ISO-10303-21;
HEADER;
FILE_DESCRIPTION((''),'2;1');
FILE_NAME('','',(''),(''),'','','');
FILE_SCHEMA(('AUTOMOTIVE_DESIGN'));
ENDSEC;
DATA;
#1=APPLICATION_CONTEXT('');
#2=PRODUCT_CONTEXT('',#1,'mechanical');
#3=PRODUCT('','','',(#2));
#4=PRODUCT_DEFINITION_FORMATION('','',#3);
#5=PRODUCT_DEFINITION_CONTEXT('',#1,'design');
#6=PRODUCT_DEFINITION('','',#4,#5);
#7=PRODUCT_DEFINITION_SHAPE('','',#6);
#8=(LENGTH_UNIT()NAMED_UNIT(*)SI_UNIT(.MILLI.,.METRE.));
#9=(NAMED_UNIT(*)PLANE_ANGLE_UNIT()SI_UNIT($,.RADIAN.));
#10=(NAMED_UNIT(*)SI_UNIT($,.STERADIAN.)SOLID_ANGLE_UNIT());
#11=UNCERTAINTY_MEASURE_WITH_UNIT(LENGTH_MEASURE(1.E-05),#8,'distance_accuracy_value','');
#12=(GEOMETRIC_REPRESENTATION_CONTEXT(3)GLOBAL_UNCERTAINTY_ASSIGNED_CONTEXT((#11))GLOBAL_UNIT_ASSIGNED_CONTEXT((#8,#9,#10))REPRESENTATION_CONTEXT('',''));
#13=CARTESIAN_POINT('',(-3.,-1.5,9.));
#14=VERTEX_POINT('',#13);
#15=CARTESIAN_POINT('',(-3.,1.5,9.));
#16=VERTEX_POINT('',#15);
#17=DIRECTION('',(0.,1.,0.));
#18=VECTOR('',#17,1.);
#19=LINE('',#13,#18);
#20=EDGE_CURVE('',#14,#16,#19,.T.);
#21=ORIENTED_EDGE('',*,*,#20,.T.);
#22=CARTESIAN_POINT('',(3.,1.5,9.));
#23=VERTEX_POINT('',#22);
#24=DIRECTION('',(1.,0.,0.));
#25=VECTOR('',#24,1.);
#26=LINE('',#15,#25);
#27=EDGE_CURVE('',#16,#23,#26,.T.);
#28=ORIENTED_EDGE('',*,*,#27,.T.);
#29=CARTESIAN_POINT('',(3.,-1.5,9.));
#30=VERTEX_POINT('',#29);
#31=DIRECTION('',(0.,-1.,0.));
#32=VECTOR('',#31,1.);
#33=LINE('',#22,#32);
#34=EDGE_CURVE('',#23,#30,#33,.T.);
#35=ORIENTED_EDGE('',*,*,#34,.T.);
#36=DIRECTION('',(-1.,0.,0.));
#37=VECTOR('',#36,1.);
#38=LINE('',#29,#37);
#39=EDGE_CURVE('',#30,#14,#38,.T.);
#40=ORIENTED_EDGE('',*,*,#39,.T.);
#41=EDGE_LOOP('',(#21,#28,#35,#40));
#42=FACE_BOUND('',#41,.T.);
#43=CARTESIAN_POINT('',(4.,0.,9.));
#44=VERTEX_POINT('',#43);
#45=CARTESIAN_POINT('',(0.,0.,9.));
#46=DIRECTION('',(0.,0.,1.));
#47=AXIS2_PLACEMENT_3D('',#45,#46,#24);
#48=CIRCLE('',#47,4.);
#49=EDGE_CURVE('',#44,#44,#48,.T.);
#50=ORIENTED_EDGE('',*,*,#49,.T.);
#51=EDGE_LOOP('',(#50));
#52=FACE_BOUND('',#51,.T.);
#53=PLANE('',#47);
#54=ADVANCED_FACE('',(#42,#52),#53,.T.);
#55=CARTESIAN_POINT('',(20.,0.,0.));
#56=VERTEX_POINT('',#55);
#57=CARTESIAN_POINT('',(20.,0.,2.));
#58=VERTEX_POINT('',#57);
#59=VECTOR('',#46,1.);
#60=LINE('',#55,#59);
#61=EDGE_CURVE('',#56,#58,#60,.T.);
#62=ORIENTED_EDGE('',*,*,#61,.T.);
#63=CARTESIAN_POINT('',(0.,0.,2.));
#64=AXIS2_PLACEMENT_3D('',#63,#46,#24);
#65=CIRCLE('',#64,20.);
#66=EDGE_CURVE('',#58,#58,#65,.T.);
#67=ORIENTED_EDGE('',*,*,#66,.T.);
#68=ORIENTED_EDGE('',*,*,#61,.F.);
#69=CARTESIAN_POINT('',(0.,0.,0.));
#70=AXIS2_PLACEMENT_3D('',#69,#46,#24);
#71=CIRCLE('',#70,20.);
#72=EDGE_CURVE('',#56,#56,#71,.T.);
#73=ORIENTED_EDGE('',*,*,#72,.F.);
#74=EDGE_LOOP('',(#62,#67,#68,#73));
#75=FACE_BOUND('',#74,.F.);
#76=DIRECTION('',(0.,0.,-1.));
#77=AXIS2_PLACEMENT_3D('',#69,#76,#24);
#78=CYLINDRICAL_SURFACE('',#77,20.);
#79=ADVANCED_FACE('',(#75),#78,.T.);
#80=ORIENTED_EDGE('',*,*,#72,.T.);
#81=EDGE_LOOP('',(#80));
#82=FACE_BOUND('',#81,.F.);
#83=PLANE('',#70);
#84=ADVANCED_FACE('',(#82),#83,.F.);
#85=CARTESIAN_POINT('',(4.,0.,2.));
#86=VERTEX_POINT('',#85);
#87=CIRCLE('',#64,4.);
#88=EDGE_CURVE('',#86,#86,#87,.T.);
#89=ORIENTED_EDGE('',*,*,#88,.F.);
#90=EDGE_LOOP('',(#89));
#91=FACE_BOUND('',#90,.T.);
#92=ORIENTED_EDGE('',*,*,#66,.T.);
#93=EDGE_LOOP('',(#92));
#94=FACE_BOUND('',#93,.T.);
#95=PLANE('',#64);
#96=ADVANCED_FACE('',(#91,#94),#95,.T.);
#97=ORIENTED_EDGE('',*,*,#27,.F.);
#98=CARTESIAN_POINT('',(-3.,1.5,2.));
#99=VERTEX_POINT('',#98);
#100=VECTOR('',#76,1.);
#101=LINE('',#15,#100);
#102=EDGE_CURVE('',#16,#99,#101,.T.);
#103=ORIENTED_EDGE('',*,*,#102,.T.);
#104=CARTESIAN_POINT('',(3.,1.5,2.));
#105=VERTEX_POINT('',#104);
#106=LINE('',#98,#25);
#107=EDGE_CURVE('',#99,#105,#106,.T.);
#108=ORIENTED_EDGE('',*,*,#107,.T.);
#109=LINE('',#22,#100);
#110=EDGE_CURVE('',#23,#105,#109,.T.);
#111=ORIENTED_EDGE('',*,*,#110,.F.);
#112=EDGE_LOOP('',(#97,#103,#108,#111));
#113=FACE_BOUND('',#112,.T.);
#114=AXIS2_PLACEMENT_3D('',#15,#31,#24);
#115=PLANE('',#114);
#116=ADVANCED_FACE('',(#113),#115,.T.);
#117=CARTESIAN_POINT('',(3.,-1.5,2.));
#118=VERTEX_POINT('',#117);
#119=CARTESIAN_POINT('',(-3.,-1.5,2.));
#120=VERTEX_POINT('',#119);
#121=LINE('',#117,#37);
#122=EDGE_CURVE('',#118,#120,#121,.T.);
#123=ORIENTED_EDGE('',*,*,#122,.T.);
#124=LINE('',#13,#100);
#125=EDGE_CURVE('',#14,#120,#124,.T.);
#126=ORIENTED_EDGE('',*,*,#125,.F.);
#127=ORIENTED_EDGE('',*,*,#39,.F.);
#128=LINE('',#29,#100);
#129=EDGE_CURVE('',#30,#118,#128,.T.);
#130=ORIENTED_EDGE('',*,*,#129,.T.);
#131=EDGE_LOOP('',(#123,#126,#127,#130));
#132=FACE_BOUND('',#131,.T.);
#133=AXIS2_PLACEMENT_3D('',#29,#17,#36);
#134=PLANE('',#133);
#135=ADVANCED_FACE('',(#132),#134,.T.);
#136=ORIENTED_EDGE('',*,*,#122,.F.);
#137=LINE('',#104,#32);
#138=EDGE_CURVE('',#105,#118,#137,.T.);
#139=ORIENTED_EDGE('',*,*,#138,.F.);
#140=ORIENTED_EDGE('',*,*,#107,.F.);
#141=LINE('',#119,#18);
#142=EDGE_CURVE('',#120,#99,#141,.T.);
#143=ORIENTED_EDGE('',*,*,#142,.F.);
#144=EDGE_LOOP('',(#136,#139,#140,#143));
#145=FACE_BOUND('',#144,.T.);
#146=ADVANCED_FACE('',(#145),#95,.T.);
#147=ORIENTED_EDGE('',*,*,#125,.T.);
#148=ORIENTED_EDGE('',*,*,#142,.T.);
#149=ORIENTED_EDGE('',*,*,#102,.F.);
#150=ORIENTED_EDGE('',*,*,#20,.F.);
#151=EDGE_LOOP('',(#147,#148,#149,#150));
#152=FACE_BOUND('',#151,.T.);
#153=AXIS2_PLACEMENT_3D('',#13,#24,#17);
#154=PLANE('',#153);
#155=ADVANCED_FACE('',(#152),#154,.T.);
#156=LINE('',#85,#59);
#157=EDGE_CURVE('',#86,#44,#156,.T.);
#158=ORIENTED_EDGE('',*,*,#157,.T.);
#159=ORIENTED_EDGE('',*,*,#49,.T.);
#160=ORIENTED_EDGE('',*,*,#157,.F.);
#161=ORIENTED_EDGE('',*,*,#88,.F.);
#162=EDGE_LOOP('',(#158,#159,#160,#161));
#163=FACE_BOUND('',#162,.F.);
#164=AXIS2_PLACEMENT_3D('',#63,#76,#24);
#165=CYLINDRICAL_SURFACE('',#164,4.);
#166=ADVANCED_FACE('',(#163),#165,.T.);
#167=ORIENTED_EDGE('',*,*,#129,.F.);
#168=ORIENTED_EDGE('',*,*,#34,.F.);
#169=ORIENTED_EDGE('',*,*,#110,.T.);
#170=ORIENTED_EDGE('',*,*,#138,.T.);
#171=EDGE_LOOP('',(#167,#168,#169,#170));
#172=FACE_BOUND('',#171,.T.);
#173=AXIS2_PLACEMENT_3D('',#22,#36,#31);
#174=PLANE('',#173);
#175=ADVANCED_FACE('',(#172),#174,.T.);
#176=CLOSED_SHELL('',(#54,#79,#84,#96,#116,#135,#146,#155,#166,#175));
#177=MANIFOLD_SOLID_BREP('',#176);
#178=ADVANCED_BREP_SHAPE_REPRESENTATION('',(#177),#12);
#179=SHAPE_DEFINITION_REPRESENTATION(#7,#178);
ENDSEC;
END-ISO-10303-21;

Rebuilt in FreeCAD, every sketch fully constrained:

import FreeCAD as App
import Part
import Sketcher
from FreeCAD import Vector

doc = App.newDocument("Part")
params = doc.addObject("Spreadsheet::Sheet", "Params")
for row, (alias, value) in enumerate([
    ("sketch1_diameter", "40 mm"),
    ("pad1_length", "2 mm"),
    ("sketch2_diameter", "8 mm"),
    ("pad2_length", "7 mm"),
    ("sketch3_width", "6 mm"),
    ("sketch3_height", "3 mm"),
    ("pocket1_length", "7 mm"),
], start=1):
    params.set(f"A{row}", alias)
    params.set(f"B{row}", "=" + value)
    params.setAlias(f"B{row}", alias)

body = doc.addObject("PartDesign::Body", "Body")

sketch1 = body.newObject("Sketcher::SketchObject", "Sketch")
sketch1.AttachmentSupport = (doc.getObject("XY_Plane"), [""])
sketch1.MapMode = "FlatFace"
sketch1.addGeometry(Part.Circle(Vector(0, 0, 0), Vector(0, 0, 1), 20), False)
sketch1.addConstraint([
    Sketcher.Constraint("Coincident", 0, 3, -1, 1),
    Sketcher.Constraint("Diameter", 0, 40.0),
])
sketch1.setExpression("Constraints[1]", "Params.sketch1_diameter")
pad1 = body.newObject("PartDesign::Pad", "Pad")
pad1.Profile = sketch1
pad1.setExpression("Length", "Params.pad1_length")

sketch2 = body.newObject("Sketcher::SketchObject", "Sketch001")
sketch2.AttachmentSupport = (doc.getObject("XY_Plane"), [""])
sketch2.MapMode = "FlatFace"
sketch2.AttachmentOffset = App.Placement(Vector(0, 0, 2), App.Rotation())
sketch2.addGeometry(Part.Circle(Vector(0, 0, 0), Vector(0, 0, 1), 4), False)
sketch2.addConstraint([
    Sketcher.Constraint("Coincident", 0, 3, -1, 1),
    Sketcher.Constraint("Diameter", 0, 8.0),
])
sketch2.setExpression("Constraints[1]", "Params.sketch2_diameter")
pad2 = body.newObject("PartDesign::Pad", "Pad001")
pad2.Profile = sketch2
pad2.setExpression("Length", "Params.pad2_length")

sketch3 = body.newObject("Sketcher::SketchObject", "Sketch002")
sketch3.AttachmentSupport = (doc.getObject("XY_Plane"), [""])
sketch3.MapMode = "FlatFace"
sketch3.AttachmentOffset = App.Placement(Vector(0, 0, 9), App.Rotation())
sketch3.addGeometry([
    Part.LineSegment(Vector(3, 1.5, 0), Vector(-3, 1.5, 0)),
    Part.LineSegment(Vector(-3, 1.5, 0), Vector(-3, -1.5, 0)),
    Part.LineSegment(Vector(-3, -1.5, 0), Vector(3, -1.5, 0)),
    Part.LineSegment(Vector(3, -1.5, 0), Vector(3, 1.5, 0)),
], False)
sketch3.addConstraint([
    Sketcher.Constraint("Coincident", 0, 2, 1, 1),
    Sketcher.Constraint("Coincident", 1, 2, 2, 1),
    Sketcher.Constraint("Coincident", 2, 2, 3, 1),
    Sketcher.Constraint("Coincident", 3, 2, 0, 1),
    Sketcher.Constraint("Horizontal", 0),
    Sketcher.Constraint("Vertical", 1),
    Sketcher.Constraint("Horizontal", 2),
    Sketcher.Constraint("Vertical", 3),
    Sketcher.Constraint("Symmetric", 0, 2, 2, 2, -1, 1),
    Sketcher.Constraint("DistanceX", 0, 2, 0, 1, 6.0),
    Sketcher.Constraint("DistanceY", 1, 2, 1, 1, 3.0),
])
sketch3.setExpression("Constraints[9]", "Params.sketch3_width")
sketch3.setExpression("Constraints[10]", "Params.sketch3_height")
pocket1 = body.newObject("PartDesign::Pocket", "Pocket")
pocket1.Profile = sketch3
pocket1.setExpression("Length", "Params.pocket1_length")

doc.recompute()
